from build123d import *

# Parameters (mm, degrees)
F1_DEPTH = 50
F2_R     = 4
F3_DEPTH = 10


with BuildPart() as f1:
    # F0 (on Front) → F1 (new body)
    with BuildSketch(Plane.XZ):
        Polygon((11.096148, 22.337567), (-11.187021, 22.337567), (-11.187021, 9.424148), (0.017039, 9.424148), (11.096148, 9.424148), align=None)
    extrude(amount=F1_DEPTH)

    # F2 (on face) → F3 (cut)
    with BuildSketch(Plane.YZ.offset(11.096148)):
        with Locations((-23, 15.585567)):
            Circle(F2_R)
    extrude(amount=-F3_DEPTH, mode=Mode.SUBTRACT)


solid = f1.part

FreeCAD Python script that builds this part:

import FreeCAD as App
import Part
import Sketcher


def add_polygon(sketch, points):
    """Adds a closed chain of lines whose ends are joined by coincident constraints."""
    first, n = sketch.GeometryCount, len(points)
    for a, b in zip(points, points[1:] + points[:1]):
        sketch.addGeometry(Part.LineSegment(App.Vector(*a, 0), App.Vector(*b, 0)), False)
    for i in range(n):
        sketch.addConstraint(Sketcher.Constraint("Coincident", first + i, 2, first + (i + 1) % n, 1))

doc = App.newDocument("Part")
body = doc.addObject("PartDesign::Body", "Body")

# Sketch on XZ plane
sketch1 = body.newObject("Sketcher::SketchObject", "Sketch")
sketch1.AttachmentSupport = (doc.getObject("XZ_Plane"), [""])
sketch1.MapMode = "FlatFace"
add_polygon(sketch1, [(11.096148, 22.337567), (-11.187021, 22.337567), (-11.187021, 9.424148), (11.096148, 9.424148)])  # lines 0-3
sketch1.addConstraint(Sketcher.Constraint("Horizontal", 0))
sketch1.addConstraint(Sketcher.Constraint("Vertical", 1))
sketch1.addConstraint(Sketcher.Constraint("Horizontal", 2))
sketch1.addConstraint(Sketcher.Constraint("Vertical", 3))
sketch1.addConstraint(Sketcher.Constraint("DistanceX", 0, 2, 0, 1, 22.283169))
sketch1.addConstraint(Sketcher.Constraint("DistanceY", 1, 2, 1, 1, 12.913419))
sketch1.addConstraint(Sketcher.Constraint("DistanceX", 0, 2, -1, 1, 11.187021))
sketch1.addConstraint(Sketcher.Constraint("DistanceY", -1, 1, 1, 2, 9.424148))
pad1 = body.newObject("PartDesign::Pad", "Pad")
pad1.Profile = sketch1
pad1.Length = 50

# Sketch on YZ plane
sketch2 = body.newObject("Sketcher::SketchObject", "Sketch001")
sketch2.AttachmentSupport = (doc.getObject("YZ_Plane"), [""])
sketch2.MapMode = "FlatFace"
sketch2.AttachmentOffset = App.Placement(App.Vector(0, 0, 11.096148), App.Rotation())
sketch2.addGeometry(Part.Circle(App.Vector(-23, 15.585567, 0), App.Vector(0, 0, 1), 4), False)
sketch2.addConstraint(Sketcher.Constraint("Diameter", 0, 8.0))
sketch2.addConstraint(Sketcher.Constraint("DistanceX", 0, 3, -1, 1, 23.0))
sketch2.addConstraint(Sketcher.Constraint("DistanceY", -1, 1, 0, 3, 15.585567))
pocket1 = body.newObject("PartDesign::Pocket", "Pocket")
pocket1.Profile = sketch2
pocket1.Length = 10

doc.recompute()
